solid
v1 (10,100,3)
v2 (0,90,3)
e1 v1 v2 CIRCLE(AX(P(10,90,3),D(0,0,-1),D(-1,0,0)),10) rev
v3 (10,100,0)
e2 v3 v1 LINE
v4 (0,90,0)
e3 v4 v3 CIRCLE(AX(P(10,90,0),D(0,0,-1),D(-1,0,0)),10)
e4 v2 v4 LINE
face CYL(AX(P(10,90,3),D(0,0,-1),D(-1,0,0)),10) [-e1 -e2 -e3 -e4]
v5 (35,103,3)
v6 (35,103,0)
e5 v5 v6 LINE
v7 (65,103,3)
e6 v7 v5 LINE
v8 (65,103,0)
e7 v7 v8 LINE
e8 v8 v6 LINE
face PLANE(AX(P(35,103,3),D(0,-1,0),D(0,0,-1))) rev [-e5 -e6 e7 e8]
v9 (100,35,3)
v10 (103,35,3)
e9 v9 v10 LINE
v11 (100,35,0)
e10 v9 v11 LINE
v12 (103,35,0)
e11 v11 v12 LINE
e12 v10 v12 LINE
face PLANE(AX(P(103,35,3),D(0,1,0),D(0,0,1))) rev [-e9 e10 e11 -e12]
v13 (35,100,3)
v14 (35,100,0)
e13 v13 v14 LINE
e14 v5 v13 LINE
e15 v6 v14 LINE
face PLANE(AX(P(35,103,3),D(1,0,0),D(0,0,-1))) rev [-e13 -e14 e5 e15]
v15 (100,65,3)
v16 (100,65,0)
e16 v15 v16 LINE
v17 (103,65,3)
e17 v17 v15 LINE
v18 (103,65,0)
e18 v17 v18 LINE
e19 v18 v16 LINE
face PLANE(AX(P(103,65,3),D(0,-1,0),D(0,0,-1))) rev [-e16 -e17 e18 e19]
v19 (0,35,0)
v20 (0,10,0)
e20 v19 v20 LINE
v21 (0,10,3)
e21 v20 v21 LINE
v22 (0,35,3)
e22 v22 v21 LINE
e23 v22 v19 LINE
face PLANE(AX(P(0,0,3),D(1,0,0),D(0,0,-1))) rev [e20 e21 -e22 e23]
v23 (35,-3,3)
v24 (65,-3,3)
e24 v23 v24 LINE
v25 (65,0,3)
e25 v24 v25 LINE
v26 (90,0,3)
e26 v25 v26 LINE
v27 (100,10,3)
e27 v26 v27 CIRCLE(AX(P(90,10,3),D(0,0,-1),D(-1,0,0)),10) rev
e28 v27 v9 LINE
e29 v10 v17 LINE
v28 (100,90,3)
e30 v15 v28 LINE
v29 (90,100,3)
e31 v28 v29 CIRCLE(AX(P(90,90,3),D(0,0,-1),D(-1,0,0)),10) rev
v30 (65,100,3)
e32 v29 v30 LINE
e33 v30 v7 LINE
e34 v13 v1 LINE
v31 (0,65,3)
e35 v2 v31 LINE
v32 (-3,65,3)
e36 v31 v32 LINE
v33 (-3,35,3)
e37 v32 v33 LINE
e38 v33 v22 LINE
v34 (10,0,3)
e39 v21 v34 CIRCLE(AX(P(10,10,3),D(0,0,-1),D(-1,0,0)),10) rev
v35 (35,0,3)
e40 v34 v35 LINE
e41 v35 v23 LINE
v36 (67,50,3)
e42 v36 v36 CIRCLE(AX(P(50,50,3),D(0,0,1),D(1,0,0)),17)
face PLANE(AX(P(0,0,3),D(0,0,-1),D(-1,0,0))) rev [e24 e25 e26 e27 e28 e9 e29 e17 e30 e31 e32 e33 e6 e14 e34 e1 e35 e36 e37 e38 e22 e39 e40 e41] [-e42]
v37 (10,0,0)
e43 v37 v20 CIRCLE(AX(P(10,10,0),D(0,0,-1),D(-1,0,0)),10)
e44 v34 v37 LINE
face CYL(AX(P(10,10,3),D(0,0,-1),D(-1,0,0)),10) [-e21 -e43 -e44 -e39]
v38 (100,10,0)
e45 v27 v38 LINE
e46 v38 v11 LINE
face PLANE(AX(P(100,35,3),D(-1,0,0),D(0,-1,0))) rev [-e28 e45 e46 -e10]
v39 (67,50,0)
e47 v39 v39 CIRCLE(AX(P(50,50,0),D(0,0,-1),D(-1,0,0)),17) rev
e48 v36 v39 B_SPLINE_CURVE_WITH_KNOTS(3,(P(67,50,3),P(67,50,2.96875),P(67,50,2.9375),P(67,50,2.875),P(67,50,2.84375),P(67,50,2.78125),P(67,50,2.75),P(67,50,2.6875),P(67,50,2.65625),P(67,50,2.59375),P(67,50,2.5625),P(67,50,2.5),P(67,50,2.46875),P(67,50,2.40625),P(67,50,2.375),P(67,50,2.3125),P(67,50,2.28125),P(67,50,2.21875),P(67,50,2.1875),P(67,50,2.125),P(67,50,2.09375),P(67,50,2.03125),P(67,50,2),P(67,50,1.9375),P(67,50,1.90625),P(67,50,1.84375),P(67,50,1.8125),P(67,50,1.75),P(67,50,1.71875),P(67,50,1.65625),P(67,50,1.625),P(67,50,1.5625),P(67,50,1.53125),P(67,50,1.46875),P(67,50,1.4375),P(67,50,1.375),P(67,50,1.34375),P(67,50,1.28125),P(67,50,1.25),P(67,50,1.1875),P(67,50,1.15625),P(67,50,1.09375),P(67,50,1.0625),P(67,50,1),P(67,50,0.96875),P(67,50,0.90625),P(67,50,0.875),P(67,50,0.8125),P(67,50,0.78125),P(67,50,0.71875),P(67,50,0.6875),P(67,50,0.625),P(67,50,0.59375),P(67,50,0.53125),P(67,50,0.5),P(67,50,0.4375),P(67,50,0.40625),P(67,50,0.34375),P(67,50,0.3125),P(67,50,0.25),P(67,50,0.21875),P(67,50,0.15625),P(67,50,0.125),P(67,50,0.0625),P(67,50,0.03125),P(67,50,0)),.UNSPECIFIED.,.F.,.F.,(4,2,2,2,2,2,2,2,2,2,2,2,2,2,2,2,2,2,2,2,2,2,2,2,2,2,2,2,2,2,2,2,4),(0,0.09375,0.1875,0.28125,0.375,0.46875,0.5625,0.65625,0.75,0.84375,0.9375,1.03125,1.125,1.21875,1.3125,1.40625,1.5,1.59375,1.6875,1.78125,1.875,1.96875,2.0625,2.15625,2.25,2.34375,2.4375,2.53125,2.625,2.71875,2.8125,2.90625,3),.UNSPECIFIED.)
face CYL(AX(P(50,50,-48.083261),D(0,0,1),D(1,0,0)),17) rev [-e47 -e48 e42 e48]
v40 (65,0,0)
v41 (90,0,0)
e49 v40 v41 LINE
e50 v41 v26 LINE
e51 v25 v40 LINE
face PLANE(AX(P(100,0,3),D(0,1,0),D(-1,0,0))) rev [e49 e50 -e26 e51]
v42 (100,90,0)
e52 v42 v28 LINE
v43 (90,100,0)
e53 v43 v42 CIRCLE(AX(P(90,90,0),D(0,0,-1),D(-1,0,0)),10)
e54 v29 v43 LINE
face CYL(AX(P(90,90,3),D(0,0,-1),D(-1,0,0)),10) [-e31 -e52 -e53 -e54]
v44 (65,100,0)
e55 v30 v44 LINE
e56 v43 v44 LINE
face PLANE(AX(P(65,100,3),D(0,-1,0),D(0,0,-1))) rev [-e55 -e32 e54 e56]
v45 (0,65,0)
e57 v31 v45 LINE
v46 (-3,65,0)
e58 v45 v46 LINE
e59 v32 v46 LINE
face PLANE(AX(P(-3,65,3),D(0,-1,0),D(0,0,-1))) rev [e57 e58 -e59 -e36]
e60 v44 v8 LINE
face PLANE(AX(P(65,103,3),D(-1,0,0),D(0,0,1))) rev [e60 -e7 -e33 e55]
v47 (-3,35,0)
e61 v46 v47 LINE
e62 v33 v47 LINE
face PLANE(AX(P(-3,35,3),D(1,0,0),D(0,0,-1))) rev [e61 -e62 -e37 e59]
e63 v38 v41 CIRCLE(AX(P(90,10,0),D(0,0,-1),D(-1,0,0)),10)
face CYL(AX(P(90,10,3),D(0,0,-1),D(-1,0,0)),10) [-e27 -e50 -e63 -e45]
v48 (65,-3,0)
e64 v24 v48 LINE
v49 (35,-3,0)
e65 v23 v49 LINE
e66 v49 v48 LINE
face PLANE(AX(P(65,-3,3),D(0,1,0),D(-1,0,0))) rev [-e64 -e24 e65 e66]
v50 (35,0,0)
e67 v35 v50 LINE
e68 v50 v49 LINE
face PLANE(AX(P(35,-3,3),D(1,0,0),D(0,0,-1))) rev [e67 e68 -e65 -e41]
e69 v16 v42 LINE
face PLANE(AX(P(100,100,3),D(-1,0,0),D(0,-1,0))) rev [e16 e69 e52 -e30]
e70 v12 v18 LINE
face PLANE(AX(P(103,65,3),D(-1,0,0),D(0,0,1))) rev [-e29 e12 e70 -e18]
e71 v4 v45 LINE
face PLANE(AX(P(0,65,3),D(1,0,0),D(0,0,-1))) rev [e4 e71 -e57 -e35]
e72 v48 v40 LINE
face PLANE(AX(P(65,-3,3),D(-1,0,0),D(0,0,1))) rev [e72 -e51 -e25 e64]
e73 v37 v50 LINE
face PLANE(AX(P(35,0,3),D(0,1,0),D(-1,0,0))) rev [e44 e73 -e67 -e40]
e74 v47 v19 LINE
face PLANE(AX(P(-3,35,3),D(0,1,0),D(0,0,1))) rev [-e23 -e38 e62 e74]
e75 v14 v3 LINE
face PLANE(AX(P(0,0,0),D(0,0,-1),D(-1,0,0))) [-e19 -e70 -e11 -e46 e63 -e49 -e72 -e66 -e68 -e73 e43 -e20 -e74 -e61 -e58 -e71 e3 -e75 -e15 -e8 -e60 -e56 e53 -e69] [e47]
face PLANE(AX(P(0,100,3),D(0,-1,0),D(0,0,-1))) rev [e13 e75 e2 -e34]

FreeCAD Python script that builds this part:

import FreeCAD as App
import Part
import Sketcher
from FreeCAD import Vector
Q = App.Units.Quantity


def edges_at(feature, points):
    """Names of the edges that pass closest to the given points."""
    edges = feature.Shape.Edges
    near = lambda p: min(range(len(edges)), key=lambda i: edges[i].distToShape(Part.Vertex(*p))[0])
    return sorted({f"Edge{near(p) + 1}" for p in points})

doc = App.newDocument("Part")
body = doc.addObject("PartDesign::Body", "Body")

sketch1 = doc.addObject("Sketcher::SketchObject", "Sketch")
body.addObject(sketch1)
sketch1.AttachmentSupport = (doc.XY_Plane, [""])
sketch1.MapMode = "FlatFace"
sketch1.addGeometry(Part.LineSegment(Vector(0, 35, 0), Vector(0, 0, 0)), False)
sketch1.addGeometry(Part.LineSegment(Vector(0, 0, 0), Vector(35, 0, 0)), False)
sketch1.addGeometry(Part.LineSegment(Vector(35, 0, 0), Vector(35, -3, 0)), False)
sketch1.addGeometry(Part.LineSegment(Vector(35, -3, 0), Vector(65, -3, 0)), False)
sketch1.addGeometry(Part.LineSegment(Vector(65, -3, 0), Vector(65, 0, 0)), False)
sketch1.addGeometry(Part.LineSegment(Vector(65, 0, 0), Vector(100, 0, 0)), False)
sketch1.addGeometry(Part.LineSegment(Vector(100, 0, 0), Vector(100, 35, 0)), False)
sketch1.addGeometry(Part.LineSegment(Vector(100, 35, 0), Vector(103, 35, 0)), False)
sketch1.addGeometry(Part.LineSegment(Vector(103, 35, 0), Vector(103, 65, 0)), False)
sketch1.addGeometry(Part.LineSegment(Vector(103, 65, 0), Vector(100, 65, 0)), False)
sketch1.addGeometry(Part.LineSegment(Vector(100, 65, 0), Vector(100, 100, 0)), False)
sketch1.addGeometry(Part.LineSegment(Vector(100, 100, 0), Vector(65, 100, 0)), False)
sketch1.addGeometry(Part.LineSegment(Vector(65, 100, 0), Vector(65, 103, 0)), False)
sketch1.addGeometry(Part.LineSegment(Vector(65, 103, 0), Vector(35, 103, 0)), False)
sketch1.addGeometry(Part.LineSegment(Vector(35, 103, 0), Vector(35, 100, 0)), False)
sketch1.addGeometry(Part.LineSegment(Vector(35, 100, 0), Vector(0, 100, 0)), False)
sketch1.addGeometry(Part.LineSegment(Vector(0, 100, 0), Vector(0, 65, 0)), False)
sketch1.addGeometry(Part.LineSegment(Vector(0, 65, 0), Vector(-3, 65, 0)), False)
sketch1.addGeometry(Part.LineSegment(Vector(-3, 65, 0), Vector(-3, 35, 0)), False)
sketch1.addGeometry(Part.LineSegment(Vector(-3, 35, 0), Vector(0, 35, 0)), False)
sketch1.addConstraint(Sketcher.Constraint("Coincident", 0, 2, 1, 1))
sketch1.addConstraint(Sketcher.Constraint("Coincident", 1, 2, 2, 1))
sketch1.addConstraint(Sketcher.Constraint("Coincident", 2, 2, 3, 1))
sketch1.addConstraint(Sketcher.Constraint("Coincident", 3, 2, 4, 1))
sketch1.addConstraint(Sketcher.Constraint("Coincident", 4, 2, 5, 1))
sketch1.addConstraint(Sketcher.Constraint("Coincident", 5, 2, 6, 1))
sketch1.addConstraint(Sketcher.Constraint("Coincident", 6, 2, 7, 1))
sketch1.addConstraint(Sketcher.Constraint("Coincident", 7, 2, 8, 1))
sketch1.addConstraint(Sketcher.Constraint("Coincident", 8, 2, 9, 1))
sketch1.addConstraint(Sketcher.Constraint("Coincident", 9, 2, 10, 1))
sketch1.addConstraint(Sketcher.Constraint("Coincident", 10, 2, 11, 1))
sketch1.addConstraint(Sketcher.Constraint("Coincident", 11, 2, 12, 1))
sketch1.addConstraint(Sketcher.Constraint("Coincident", 12, 2, 13, 1))
sketch1.addConstraint(Sketcher.Constraint("Coincident", 13, 2, 14, 1))
sketch1.addConstraint(Sketcher.Constraint("Coincident", 14, 2, 15, 1))
sketch1.addConstraint(Sketcher.Constraint("Coincident", 15, 2, 16, 1))
sketch1.addConstraint(Sketcher.Constraint("Coincident", 16, 2, 17, 1))
sketch1.addConstraint(Sketcher.Constraint("Coincident", 17, 2, 18, 1))
sketch1.addConstraint(Sketcher.Constraint("Coincident", 18, 2, 19, 1))
sketch1.addConstraint(Sketcher.Constraint("Coincident", 19, 2, 0, 1))
sketch1.addConstraint(Sketcher.Constraint("Vertical", 0))
sketch1.addConstraint(Sketcher.Constraint("Horizontal", 1))
sketch1.addConstraint(Sketcher.Constraint("Vertical", 2))
sketch1.addConstraint(Sketcher.Constraint("Horizontal", 3))
sketch1.addConstraint(Sketcher.Constraint("Vertical", 4))
sketch1.addConstraint(Sketcher.Constraint("Horizontal", 5))
sketch1.addConstraint(Sketcher.Constraint("Vertical", 6))
sketch1.addConstraint(Sketcher.Constraint("Horizontal", 7))
sketch1.addConstraint(Sketcher.Constraint("Vertical", 8))
sketch1.addConstraint(Sketcher.Constraint("Horizontal", 9))
sketch1.addConstraint(Sketcher.Constraint("Vertical", 10))
sketch1.addConstraint(Sketcher.Constraint("Horizontal", 11))
sketch1.addConstraint(Sketcher.Constraint("Vertical", 12))
sketch1.addConstraint(Sketcher.Constraint("Horizontal", 13))
sketch1.addConstraint(Sketcher.Constraint("Vertical", 14))
sketch1.addConstraint(Sketcher.Constraint("Horizontal", 15))
sketch1.addConstraint(Sketcher.Constraint("Vertical", 16))
sketch1.addConstraint(Sketcher.Constraint("Horizontal", 17))
sketch1.addConstraint(Sketcher.Constraint("Vertical", 18))
sketch1.addConstraint(Sketcher.Constraint("Horizontal", 19))
sketch1.addConstraint(Sketcher.Constraint("Coincident", 0, 2, -1, 1))
sketch1.addConstraint(Sketcher.Constraint("PointOnObject", 4, 2, -1))
sketch1.addConstraint(Sketcher.Constraint("PointOnObject", 15, 2, -2))
sketch1.addConstraint(Sketcher.Constraint("Horizontal", 11, 2, 14, 2))
sketch1.addConstraint(Sketcher.Constraint("Horizontal", 9, 2, 16, 2))
sketch1.addConstraint(Sketcher.Constraint("Horizontal", 7, 2, 18, 2))
sketch1.addConstraint(Sketcher.Constraint("Vertical", 6, 2, 9, 2))
sketch1.addConstraint(Sketcher.Constraint("Vertical", 4, 2, 11, 2))
sketch1.addConstraint(Sketcher.Constraint("Vertical", 2, 2, 13, 2))
sketch1.addConstraint(Sketcher.Constraint("Equal", 1, 5))
sketch1.addConstraint(Sketcher.Constraint("Equal", 9, 17))
sketch1.addConstraint(Sketcher.Constraint("Equal", 15, 0))
sketch1.addConstraint(Sketcher.Constraint("Equal", 19, 2))
sketch1.addConstraint(Sketcher.Constraint("Equal", 13, 8))
sketch1.addConstraint(Sketcher.Constraint("Equal", 6, 10))
sketch1.addConstraint(Sketcher.Constraint("Equal", 4, 12))
sketch1.addConstraint(Sketcher.Constraint("DistanceX", 1, 1, 1, 2, Q("35 mm")))
sketch1.addConstraint(Sketcher.Constraint("DistanceX", 3, 1, 3, 2, Q("30 mm")))
sketch1.addConstraint(Sketcher.Constraint("DistanceX", 7, 1, 7, 2, Q("3 mm")))
pad1 = doc.addObject("PartDesign::Pad", "Pad")
body.addObject(pad1)
pad1.Profile = sketch1
pad1.Length = 3

sketch2 = doc.addObject("Sketcher::SketchObject", "Sketch001")
body.addObject(sketch2)
sketch2.AttachmentSupport = (doc.XY_Plane, [""])
sketch2.MapMode = "FlatFace"
sketch2.AttachmentOffset = App.Placement(Vector(0, 0, 3), App.Rotation())
sketch2.addGeometry(Part.Circle(Vector(50, 50, 0), Vector(0, 0, 1), 17), False)
sketch2.addConstraint(Sketcher.Constraint("Diameter", 0, Q("34 mm")))
sketch2.addConstraint(Sketcher.Constraint("DistanceX", -1, 1, 0, 3, Q("50 mm")))
sketch2.addConstraint(Sketcher.Constraint("DistanceY", -1, 1, 0, 3, Q("50 mm")))
pocket1 = doc.addObject("PartDesign::Pocket", "Pocket")
body.addObject(pocket1)
pocket1.Profile = sketch2
pocket1.Length = 3
doc.recompute()

fillet = doc.addObject("PartDesign::Fillet", "Fillet")
body.addObject(fillet)
fillet.Base = (pocket1, edges_at(pocket1, [
    (0, 0, 1.5),
    (0, 100, 1.5),
    (100, 100, 1.5),
    (100, 0, 1.5),
]))
fillet.Radius = 10

doc.recompute()
